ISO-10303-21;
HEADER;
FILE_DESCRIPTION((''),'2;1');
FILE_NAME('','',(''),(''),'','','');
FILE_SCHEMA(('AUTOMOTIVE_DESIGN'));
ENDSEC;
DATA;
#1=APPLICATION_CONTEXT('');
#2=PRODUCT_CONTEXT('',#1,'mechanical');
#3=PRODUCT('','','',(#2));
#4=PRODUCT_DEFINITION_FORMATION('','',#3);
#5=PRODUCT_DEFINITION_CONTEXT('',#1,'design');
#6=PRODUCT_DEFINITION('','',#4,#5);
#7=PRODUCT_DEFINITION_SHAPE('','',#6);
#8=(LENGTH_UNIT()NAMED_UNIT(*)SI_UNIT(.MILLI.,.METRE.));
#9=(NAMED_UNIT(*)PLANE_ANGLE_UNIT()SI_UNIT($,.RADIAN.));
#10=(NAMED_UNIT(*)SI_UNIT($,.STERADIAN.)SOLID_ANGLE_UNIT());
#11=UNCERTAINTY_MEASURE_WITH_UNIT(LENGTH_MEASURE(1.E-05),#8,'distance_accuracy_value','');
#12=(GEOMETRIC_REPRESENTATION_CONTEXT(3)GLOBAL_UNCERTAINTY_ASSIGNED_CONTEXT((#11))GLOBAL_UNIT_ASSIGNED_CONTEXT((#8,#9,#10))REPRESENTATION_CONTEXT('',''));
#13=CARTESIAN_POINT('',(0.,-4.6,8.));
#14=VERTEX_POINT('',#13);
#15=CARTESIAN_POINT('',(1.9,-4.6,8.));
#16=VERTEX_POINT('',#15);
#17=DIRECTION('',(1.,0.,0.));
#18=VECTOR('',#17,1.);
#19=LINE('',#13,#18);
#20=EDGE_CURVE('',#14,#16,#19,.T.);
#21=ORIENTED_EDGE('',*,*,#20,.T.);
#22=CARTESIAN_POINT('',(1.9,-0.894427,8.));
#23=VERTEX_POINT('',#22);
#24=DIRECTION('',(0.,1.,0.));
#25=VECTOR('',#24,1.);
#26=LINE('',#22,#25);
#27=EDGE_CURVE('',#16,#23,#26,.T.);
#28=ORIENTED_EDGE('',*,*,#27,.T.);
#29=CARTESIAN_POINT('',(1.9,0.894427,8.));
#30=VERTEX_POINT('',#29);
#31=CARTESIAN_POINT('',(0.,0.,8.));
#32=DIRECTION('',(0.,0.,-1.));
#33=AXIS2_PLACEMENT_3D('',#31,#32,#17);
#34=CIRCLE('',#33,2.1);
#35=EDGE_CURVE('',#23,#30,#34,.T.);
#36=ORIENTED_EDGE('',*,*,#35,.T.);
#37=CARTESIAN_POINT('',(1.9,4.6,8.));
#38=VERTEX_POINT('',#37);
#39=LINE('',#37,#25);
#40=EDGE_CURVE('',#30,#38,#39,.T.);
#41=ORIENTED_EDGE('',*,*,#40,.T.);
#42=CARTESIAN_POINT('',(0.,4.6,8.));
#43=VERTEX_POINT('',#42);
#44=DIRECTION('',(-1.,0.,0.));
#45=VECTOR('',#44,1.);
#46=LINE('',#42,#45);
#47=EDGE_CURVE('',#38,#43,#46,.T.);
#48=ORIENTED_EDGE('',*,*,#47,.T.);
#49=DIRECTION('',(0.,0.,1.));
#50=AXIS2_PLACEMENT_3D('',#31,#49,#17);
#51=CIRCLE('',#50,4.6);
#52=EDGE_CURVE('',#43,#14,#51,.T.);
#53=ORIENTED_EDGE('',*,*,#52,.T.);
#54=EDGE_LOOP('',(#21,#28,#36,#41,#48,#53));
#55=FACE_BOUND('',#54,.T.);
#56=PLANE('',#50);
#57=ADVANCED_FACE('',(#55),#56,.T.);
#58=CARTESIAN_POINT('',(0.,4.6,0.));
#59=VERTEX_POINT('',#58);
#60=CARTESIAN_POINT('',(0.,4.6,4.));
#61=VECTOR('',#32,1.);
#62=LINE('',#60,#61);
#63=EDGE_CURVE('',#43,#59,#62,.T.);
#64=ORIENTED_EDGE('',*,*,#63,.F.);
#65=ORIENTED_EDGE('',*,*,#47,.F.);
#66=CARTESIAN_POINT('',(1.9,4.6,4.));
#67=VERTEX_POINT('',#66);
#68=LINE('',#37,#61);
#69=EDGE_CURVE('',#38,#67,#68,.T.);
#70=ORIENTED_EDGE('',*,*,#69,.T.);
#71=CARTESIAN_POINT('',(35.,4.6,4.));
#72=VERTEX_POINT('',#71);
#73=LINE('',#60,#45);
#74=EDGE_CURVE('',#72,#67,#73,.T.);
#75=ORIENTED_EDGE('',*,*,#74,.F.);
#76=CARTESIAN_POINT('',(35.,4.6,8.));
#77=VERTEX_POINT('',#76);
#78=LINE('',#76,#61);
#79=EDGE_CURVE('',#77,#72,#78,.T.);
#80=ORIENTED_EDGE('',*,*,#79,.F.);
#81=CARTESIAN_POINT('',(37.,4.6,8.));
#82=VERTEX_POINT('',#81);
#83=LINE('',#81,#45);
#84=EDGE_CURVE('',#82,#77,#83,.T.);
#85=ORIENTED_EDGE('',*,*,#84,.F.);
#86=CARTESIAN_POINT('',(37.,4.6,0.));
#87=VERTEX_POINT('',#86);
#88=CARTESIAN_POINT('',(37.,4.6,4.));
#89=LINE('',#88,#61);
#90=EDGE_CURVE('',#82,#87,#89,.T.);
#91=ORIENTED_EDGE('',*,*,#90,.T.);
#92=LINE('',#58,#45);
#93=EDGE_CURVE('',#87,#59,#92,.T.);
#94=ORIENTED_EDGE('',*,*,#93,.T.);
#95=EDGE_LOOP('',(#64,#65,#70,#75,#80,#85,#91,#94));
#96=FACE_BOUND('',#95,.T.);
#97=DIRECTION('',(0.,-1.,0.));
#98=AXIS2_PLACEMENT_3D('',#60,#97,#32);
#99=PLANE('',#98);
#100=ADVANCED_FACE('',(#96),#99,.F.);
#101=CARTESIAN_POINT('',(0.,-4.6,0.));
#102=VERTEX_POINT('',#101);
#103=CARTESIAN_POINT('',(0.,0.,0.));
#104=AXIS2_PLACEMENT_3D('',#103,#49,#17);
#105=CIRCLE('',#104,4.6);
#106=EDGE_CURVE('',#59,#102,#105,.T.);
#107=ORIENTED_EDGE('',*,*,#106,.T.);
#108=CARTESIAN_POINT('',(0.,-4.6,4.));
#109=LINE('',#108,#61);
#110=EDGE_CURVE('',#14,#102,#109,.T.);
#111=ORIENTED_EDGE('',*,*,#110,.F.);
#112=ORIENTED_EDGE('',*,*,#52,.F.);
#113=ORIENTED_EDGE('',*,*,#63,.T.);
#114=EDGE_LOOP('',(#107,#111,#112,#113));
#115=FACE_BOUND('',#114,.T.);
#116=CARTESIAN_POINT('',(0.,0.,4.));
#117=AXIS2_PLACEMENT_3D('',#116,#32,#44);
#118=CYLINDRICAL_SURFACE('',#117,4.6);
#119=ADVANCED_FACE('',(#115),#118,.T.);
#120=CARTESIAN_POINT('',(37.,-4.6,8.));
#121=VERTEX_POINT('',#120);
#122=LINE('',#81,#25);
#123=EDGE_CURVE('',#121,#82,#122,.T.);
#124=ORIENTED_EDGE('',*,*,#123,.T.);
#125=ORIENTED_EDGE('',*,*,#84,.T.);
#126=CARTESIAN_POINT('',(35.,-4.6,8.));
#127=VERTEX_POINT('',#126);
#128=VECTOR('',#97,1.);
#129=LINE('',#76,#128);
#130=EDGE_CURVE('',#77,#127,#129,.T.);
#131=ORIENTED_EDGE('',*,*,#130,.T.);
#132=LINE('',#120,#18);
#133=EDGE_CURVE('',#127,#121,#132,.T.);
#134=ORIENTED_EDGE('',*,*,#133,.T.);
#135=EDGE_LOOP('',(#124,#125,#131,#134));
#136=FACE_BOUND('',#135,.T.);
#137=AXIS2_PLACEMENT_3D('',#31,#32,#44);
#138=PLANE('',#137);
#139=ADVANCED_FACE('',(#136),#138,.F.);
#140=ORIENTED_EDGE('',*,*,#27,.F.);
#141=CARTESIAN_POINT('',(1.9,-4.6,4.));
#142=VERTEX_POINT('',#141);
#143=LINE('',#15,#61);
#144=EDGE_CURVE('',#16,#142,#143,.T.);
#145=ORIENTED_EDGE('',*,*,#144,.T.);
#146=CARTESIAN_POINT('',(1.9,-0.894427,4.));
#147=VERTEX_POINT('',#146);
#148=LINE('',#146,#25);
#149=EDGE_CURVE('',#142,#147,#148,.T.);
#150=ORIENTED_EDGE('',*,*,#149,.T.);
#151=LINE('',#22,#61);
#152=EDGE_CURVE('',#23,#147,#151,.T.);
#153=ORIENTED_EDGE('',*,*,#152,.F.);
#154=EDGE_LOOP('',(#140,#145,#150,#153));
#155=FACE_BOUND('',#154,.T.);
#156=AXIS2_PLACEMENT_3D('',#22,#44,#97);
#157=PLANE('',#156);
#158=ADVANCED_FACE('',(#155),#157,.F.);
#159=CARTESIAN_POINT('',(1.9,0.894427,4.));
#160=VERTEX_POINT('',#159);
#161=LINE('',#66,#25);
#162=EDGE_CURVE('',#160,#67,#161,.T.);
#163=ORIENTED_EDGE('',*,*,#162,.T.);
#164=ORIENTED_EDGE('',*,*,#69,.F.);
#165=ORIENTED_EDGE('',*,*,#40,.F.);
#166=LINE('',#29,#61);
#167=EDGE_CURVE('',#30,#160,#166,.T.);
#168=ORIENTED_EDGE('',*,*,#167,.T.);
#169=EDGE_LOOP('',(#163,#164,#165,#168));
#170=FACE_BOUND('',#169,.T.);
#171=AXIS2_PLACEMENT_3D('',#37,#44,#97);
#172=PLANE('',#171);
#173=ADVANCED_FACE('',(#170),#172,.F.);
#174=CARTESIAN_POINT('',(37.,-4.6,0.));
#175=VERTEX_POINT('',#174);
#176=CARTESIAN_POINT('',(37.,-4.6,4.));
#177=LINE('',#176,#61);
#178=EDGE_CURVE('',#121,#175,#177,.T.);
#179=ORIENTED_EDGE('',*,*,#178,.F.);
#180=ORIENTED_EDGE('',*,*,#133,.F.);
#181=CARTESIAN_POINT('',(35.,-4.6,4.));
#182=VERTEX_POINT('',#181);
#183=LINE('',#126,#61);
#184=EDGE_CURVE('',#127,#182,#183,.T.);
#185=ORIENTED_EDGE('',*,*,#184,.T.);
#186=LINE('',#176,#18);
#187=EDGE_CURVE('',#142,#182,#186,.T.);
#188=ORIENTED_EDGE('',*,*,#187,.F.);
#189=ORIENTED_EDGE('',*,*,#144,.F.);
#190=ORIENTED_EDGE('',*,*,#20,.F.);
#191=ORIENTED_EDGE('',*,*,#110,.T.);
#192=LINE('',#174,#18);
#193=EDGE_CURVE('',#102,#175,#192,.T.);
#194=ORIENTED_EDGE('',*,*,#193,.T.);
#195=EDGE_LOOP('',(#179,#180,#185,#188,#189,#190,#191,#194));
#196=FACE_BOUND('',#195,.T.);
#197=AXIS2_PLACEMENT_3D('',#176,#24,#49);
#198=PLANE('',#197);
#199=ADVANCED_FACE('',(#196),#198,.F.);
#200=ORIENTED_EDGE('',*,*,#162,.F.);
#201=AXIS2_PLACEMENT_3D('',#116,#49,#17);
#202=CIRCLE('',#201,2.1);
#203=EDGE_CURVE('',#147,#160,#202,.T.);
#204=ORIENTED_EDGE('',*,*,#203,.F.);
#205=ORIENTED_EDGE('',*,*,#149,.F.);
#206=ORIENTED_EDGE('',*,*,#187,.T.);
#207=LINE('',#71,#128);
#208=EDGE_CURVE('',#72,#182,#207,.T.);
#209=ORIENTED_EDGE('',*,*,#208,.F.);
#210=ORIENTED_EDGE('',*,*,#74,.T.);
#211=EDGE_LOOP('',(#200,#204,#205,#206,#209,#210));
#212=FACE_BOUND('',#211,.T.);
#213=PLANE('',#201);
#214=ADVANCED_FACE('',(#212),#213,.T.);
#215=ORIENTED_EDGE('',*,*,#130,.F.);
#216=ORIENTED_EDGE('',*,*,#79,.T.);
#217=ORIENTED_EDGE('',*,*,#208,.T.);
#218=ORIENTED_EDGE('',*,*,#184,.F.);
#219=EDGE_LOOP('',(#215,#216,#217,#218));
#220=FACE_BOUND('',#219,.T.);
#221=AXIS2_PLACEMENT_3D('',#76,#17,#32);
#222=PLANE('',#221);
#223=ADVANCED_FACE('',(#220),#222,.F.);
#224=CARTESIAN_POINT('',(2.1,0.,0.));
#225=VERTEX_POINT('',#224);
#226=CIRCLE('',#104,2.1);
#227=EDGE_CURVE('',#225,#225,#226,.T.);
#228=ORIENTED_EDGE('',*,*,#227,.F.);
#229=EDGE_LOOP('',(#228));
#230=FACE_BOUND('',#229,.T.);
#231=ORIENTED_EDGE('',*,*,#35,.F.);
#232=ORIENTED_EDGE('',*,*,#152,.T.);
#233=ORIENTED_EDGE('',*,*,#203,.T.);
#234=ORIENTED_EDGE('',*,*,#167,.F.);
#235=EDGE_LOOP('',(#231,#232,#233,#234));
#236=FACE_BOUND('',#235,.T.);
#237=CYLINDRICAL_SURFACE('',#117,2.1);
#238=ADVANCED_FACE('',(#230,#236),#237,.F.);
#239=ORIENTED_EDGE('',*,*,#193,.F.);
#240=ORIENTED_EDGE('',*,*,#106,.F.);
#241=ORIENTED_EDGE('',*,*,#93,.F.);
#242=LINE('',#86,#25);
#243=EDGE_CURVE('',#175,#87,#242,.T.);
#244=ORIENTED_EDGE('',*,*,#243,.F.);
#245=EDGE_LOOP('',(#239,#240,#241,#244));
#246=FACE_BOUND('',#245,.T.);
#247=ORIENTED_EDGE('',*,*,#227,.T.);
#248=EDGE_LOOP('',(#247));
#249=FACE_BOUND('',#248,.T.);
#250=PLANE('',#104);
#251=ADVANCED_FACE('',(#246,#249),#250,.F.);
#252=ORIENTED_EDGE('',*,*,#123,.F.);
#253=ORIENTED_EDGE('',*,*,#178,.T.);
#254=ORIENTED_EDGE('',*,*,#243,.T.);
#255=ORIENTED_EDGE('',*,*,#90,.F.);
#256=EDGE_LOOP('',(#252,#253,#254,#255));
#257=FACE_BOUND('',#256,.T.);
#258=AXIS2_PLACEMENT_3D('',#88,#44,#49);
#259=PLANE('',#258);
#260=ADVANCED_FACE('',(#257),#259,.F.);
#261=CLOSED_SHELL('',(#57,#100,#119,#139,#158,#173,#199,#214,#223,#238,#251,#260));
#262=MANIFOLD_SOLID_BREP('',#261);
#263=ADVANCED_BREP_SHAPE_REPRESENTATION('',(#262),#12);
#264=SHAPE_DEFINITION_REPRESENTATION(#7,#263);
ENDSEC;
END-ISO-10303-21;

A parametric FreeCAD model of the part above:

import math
import FreeCAD as App
import Part
import Sketcher

V = App.Vector


def add_polygon(sketch, points):
    """Adds a closed chain of lines whose ends are joined by coincident constraints."""
    first, n = sketch.GeometryCount, len(points)
    for a, b in zip(points, points[1:] + points[:1]):
        sketch.addGeometry(Part.LineSegment(App.Vector(*a, 0), App.Vector(*b, 0)), False)
    for i in range(n):
        sketch.addConstraint(Sketcher.Constraint("Coincident", first + i, 2, first + (i + 1) % n, 1))

doc = App.newDocument("Part")
params = doc.addObject("Spreadsheet::Sheet", "Params")
for row, (alias, value) in enumerate([
    ("sketch1_diameter", "4.2 mm"),
    ("sketch1_radius", "4.6 mm"),
    ("sketch1_width", "37 mm"),
    ("pad1_length", "4 mm"),
    ("sketch2_radius", "4.6 mm"),
    ("sketch2_radius2", "2.1 mm"),
    ("sketch2_width", "2 mm"),
    ("sketch2_width2", "1.9 mm"),
    ("pad2_length", "4 mm"),
], start=1):
    params.set(f"A{row}", alias)
    params.set(f"B{row}", "=" + value)
    params.setAlias(f"B{row}", alias)

body = doc.addObject("PartDesign::Body", "Body")

# Sketch on XY plane
sketch1 = doc.addObject("Sketcher::SketchObject", "Sketch")
body.addObject(sketch1)
sketch1.AttachmentSupport = (doc.XY_Plane, [""])
sketch1.MapMode = "FlatFace"
sketch1.addGeometry([
    Part.LineSegment(V(37, 4.6, 0), V(0, 4.6, 0)),  # 0
    Part.ArcOfCircle(Part.Circle(V(0, 0, 0), V(0, 0, 1), 4.6), math.radians(90), math.radians(270)),  # 1
    Part.LineSegment(V(0, -4.6, 0), V(37, -4.6, 0)),  # 2
    Part.LineSegment(V(37, -4.6, 0), V(37, 4.6, 0)),  # 3
    Part.Circle(V(0, 0, 0), V(0, 0, 1), 2.1),  # 4
], False)
sketch1.addConstraint([
    Sketcher.Constraint("Tangent", 0, 2, 1, 1),
    Sketcher.Constraint("Tangent", 1, 2, 2, 1),
    Sketcher.Constraint("Coincident", 2, 2, 3, 1),
    Sketcher.Constraint("Coincident", 3, 2, 0, 1),
    Sketcher.Constraint("Horizontal", 0),
    Sketcher.Constraint("Horizontal", 2),
    Sketcher.Constraint("Vertical", 3),
    Sketcher.Constraint("Coincident", 1, 3, -1, 1),
    Sketcher.Constraint("Coincident", 4, 3, -1, 1),
    Sketcher.Constraint("Diameter", 4, 4.2),
    Sketcher.Constraint("Radius", 1, 4.6),
    Sketcher.Constraint("DistanceX", 0, 2, 0, 1, 37.0),
])
sketch1.setExpression("Constraints[9]", "Params.sketch1_diameter")
sketch1.setExpression("Constraints[10]", "Params.sketch1_radius")
sketch1.setExpression("Constraints[11]", "Params.sketch1_width")
pad1 = doc.addObject("PartDesign::Pad", "Pad")
body.addObject(pad1)
pad1.Profile = sketch1
pad1.setExpression("Length", "Params.pad1_length")

# Sketch on XY plane
sketch2 = doc.addObject("Sketcher::SketchObject", "Sketch001")
body.addObject(sketch2)
sketch2.AttachmentSupport = (doc.XY_Plane, [""])
sketch2.MapMode = "FlatFace"
sketch2.AttachmentOffset = App.Placement(V(0, 0, 4), App.Rotation())
add_polygon(sketch2, [(35, 4.6), (35, -4.6), (37, -4.6), (37, 4.6)])  # lines 0-3
sketch2.addGeometry(Part.LineSegment(V(1.9, 0.894427, 0), V(1.9, 4.6, 0)), False)  # 4
sketch2.addGeometry(Part.LineSegment(V(1.9, 4.6, 0), V(0, 4.6, 0)), False)  # 5
sketch2.addGeometry(Part.ArcOfCircle(Part.Circle(V(0, 0, 0), V(0, 0, 1), 4.6), math.radians(90), math.radians(270)), False)  # 6
sketch2.addGeometry(Part.LineSegment(V(0, -4.6, 0), V(1.9, -4.6, 0)), False)  # 7
sketch2.addGeometry(Part.LineSegment(V(1.9, -4.6, 0), V(1.9, -0.894427, 0)), False)  # 8
sketch2.addGeometry(Part.ArcOfCircle(Part.Circle(V(0, 0, 0), V(0, 0, 1), 2.1), math.radians(25.208765), math.radians(334.791235)), False)  # 9
sketch2.addConstraint([
    Sketcher.Constraint("Coincident", 4, 2, 5, 1),
    Sketcher.Constraint("Tangent", 5, 2, 6, 1),
    Sketcher.Constraint("Tangent", 6, 2, 7, 1),
    Sketcher.Constraint("Coincident", 7, 2, 8, 1),
    Sketcher.Constraint("Coincident", 8, 2, 9, 2),
    Sketcher.Constraint("Coincident", 9, 1, 4, 1),
    Sketcher.Constraint("Vertical", 0),
    Sketcher.Constraint("Horizontal", 1),
    Sketcher.Constraint("Vertical", 2),
    Sketcher.Constraint("Horizontal", 3),
    Sketcher.Constraint("Vertical", 4),
    Sketcher.Constraint("Horizontal", 5),
    Sketcher.Constraint("Horizontal", 7),
    Sketcher.Constraint("Vertical", 8),
    Sketcher.Constraint("Coincident", 6, 3, -1, 1),
    Sketcher.Constraint("Coincident", 9, 3, -1, 1),
    Sketcher.Constraint("Horizontal", 3, 2, 4, 2),
    Sketcher.Constraint("Horizontal", 1, 2, 6, 2),
    Sketcher.Constraint("Vertical", 4, 2, 7, 2),
    Sketcher.Constraint("Radius", 6, 4.6),
    Sketcher.Constraint("Radius", 9, 2.1),
    Sketcher.Constraint("DistanceX", 1, 1, 1, 2, 2.0),
    Sketcher.Constraint("DistanceX", 5, 2, 5, 1, 1.9),
    Sketcher.Constraint("DistanceX", -1, 1, 0, 2, 35.0),
])
sketch2.setExpression("Constraints[23]", "Params.sketch2_radius")
sketch2.setExpression("Constraints[24]", "Params.sketch2_radius2")
sketch2.setExpression("Constraints[25]", "Params.sketch2_width")
sketch2.setExpression("Constraints[26]", "Params.sketch2_width2")
pad2 = doc.addObject("PartDesign::Pad", "Pad001")
body.addObject(pad2)
pad2.Profile = sketch2
pad2.setExpression("Length", "Params.pad2_length")

doc.recompute()
